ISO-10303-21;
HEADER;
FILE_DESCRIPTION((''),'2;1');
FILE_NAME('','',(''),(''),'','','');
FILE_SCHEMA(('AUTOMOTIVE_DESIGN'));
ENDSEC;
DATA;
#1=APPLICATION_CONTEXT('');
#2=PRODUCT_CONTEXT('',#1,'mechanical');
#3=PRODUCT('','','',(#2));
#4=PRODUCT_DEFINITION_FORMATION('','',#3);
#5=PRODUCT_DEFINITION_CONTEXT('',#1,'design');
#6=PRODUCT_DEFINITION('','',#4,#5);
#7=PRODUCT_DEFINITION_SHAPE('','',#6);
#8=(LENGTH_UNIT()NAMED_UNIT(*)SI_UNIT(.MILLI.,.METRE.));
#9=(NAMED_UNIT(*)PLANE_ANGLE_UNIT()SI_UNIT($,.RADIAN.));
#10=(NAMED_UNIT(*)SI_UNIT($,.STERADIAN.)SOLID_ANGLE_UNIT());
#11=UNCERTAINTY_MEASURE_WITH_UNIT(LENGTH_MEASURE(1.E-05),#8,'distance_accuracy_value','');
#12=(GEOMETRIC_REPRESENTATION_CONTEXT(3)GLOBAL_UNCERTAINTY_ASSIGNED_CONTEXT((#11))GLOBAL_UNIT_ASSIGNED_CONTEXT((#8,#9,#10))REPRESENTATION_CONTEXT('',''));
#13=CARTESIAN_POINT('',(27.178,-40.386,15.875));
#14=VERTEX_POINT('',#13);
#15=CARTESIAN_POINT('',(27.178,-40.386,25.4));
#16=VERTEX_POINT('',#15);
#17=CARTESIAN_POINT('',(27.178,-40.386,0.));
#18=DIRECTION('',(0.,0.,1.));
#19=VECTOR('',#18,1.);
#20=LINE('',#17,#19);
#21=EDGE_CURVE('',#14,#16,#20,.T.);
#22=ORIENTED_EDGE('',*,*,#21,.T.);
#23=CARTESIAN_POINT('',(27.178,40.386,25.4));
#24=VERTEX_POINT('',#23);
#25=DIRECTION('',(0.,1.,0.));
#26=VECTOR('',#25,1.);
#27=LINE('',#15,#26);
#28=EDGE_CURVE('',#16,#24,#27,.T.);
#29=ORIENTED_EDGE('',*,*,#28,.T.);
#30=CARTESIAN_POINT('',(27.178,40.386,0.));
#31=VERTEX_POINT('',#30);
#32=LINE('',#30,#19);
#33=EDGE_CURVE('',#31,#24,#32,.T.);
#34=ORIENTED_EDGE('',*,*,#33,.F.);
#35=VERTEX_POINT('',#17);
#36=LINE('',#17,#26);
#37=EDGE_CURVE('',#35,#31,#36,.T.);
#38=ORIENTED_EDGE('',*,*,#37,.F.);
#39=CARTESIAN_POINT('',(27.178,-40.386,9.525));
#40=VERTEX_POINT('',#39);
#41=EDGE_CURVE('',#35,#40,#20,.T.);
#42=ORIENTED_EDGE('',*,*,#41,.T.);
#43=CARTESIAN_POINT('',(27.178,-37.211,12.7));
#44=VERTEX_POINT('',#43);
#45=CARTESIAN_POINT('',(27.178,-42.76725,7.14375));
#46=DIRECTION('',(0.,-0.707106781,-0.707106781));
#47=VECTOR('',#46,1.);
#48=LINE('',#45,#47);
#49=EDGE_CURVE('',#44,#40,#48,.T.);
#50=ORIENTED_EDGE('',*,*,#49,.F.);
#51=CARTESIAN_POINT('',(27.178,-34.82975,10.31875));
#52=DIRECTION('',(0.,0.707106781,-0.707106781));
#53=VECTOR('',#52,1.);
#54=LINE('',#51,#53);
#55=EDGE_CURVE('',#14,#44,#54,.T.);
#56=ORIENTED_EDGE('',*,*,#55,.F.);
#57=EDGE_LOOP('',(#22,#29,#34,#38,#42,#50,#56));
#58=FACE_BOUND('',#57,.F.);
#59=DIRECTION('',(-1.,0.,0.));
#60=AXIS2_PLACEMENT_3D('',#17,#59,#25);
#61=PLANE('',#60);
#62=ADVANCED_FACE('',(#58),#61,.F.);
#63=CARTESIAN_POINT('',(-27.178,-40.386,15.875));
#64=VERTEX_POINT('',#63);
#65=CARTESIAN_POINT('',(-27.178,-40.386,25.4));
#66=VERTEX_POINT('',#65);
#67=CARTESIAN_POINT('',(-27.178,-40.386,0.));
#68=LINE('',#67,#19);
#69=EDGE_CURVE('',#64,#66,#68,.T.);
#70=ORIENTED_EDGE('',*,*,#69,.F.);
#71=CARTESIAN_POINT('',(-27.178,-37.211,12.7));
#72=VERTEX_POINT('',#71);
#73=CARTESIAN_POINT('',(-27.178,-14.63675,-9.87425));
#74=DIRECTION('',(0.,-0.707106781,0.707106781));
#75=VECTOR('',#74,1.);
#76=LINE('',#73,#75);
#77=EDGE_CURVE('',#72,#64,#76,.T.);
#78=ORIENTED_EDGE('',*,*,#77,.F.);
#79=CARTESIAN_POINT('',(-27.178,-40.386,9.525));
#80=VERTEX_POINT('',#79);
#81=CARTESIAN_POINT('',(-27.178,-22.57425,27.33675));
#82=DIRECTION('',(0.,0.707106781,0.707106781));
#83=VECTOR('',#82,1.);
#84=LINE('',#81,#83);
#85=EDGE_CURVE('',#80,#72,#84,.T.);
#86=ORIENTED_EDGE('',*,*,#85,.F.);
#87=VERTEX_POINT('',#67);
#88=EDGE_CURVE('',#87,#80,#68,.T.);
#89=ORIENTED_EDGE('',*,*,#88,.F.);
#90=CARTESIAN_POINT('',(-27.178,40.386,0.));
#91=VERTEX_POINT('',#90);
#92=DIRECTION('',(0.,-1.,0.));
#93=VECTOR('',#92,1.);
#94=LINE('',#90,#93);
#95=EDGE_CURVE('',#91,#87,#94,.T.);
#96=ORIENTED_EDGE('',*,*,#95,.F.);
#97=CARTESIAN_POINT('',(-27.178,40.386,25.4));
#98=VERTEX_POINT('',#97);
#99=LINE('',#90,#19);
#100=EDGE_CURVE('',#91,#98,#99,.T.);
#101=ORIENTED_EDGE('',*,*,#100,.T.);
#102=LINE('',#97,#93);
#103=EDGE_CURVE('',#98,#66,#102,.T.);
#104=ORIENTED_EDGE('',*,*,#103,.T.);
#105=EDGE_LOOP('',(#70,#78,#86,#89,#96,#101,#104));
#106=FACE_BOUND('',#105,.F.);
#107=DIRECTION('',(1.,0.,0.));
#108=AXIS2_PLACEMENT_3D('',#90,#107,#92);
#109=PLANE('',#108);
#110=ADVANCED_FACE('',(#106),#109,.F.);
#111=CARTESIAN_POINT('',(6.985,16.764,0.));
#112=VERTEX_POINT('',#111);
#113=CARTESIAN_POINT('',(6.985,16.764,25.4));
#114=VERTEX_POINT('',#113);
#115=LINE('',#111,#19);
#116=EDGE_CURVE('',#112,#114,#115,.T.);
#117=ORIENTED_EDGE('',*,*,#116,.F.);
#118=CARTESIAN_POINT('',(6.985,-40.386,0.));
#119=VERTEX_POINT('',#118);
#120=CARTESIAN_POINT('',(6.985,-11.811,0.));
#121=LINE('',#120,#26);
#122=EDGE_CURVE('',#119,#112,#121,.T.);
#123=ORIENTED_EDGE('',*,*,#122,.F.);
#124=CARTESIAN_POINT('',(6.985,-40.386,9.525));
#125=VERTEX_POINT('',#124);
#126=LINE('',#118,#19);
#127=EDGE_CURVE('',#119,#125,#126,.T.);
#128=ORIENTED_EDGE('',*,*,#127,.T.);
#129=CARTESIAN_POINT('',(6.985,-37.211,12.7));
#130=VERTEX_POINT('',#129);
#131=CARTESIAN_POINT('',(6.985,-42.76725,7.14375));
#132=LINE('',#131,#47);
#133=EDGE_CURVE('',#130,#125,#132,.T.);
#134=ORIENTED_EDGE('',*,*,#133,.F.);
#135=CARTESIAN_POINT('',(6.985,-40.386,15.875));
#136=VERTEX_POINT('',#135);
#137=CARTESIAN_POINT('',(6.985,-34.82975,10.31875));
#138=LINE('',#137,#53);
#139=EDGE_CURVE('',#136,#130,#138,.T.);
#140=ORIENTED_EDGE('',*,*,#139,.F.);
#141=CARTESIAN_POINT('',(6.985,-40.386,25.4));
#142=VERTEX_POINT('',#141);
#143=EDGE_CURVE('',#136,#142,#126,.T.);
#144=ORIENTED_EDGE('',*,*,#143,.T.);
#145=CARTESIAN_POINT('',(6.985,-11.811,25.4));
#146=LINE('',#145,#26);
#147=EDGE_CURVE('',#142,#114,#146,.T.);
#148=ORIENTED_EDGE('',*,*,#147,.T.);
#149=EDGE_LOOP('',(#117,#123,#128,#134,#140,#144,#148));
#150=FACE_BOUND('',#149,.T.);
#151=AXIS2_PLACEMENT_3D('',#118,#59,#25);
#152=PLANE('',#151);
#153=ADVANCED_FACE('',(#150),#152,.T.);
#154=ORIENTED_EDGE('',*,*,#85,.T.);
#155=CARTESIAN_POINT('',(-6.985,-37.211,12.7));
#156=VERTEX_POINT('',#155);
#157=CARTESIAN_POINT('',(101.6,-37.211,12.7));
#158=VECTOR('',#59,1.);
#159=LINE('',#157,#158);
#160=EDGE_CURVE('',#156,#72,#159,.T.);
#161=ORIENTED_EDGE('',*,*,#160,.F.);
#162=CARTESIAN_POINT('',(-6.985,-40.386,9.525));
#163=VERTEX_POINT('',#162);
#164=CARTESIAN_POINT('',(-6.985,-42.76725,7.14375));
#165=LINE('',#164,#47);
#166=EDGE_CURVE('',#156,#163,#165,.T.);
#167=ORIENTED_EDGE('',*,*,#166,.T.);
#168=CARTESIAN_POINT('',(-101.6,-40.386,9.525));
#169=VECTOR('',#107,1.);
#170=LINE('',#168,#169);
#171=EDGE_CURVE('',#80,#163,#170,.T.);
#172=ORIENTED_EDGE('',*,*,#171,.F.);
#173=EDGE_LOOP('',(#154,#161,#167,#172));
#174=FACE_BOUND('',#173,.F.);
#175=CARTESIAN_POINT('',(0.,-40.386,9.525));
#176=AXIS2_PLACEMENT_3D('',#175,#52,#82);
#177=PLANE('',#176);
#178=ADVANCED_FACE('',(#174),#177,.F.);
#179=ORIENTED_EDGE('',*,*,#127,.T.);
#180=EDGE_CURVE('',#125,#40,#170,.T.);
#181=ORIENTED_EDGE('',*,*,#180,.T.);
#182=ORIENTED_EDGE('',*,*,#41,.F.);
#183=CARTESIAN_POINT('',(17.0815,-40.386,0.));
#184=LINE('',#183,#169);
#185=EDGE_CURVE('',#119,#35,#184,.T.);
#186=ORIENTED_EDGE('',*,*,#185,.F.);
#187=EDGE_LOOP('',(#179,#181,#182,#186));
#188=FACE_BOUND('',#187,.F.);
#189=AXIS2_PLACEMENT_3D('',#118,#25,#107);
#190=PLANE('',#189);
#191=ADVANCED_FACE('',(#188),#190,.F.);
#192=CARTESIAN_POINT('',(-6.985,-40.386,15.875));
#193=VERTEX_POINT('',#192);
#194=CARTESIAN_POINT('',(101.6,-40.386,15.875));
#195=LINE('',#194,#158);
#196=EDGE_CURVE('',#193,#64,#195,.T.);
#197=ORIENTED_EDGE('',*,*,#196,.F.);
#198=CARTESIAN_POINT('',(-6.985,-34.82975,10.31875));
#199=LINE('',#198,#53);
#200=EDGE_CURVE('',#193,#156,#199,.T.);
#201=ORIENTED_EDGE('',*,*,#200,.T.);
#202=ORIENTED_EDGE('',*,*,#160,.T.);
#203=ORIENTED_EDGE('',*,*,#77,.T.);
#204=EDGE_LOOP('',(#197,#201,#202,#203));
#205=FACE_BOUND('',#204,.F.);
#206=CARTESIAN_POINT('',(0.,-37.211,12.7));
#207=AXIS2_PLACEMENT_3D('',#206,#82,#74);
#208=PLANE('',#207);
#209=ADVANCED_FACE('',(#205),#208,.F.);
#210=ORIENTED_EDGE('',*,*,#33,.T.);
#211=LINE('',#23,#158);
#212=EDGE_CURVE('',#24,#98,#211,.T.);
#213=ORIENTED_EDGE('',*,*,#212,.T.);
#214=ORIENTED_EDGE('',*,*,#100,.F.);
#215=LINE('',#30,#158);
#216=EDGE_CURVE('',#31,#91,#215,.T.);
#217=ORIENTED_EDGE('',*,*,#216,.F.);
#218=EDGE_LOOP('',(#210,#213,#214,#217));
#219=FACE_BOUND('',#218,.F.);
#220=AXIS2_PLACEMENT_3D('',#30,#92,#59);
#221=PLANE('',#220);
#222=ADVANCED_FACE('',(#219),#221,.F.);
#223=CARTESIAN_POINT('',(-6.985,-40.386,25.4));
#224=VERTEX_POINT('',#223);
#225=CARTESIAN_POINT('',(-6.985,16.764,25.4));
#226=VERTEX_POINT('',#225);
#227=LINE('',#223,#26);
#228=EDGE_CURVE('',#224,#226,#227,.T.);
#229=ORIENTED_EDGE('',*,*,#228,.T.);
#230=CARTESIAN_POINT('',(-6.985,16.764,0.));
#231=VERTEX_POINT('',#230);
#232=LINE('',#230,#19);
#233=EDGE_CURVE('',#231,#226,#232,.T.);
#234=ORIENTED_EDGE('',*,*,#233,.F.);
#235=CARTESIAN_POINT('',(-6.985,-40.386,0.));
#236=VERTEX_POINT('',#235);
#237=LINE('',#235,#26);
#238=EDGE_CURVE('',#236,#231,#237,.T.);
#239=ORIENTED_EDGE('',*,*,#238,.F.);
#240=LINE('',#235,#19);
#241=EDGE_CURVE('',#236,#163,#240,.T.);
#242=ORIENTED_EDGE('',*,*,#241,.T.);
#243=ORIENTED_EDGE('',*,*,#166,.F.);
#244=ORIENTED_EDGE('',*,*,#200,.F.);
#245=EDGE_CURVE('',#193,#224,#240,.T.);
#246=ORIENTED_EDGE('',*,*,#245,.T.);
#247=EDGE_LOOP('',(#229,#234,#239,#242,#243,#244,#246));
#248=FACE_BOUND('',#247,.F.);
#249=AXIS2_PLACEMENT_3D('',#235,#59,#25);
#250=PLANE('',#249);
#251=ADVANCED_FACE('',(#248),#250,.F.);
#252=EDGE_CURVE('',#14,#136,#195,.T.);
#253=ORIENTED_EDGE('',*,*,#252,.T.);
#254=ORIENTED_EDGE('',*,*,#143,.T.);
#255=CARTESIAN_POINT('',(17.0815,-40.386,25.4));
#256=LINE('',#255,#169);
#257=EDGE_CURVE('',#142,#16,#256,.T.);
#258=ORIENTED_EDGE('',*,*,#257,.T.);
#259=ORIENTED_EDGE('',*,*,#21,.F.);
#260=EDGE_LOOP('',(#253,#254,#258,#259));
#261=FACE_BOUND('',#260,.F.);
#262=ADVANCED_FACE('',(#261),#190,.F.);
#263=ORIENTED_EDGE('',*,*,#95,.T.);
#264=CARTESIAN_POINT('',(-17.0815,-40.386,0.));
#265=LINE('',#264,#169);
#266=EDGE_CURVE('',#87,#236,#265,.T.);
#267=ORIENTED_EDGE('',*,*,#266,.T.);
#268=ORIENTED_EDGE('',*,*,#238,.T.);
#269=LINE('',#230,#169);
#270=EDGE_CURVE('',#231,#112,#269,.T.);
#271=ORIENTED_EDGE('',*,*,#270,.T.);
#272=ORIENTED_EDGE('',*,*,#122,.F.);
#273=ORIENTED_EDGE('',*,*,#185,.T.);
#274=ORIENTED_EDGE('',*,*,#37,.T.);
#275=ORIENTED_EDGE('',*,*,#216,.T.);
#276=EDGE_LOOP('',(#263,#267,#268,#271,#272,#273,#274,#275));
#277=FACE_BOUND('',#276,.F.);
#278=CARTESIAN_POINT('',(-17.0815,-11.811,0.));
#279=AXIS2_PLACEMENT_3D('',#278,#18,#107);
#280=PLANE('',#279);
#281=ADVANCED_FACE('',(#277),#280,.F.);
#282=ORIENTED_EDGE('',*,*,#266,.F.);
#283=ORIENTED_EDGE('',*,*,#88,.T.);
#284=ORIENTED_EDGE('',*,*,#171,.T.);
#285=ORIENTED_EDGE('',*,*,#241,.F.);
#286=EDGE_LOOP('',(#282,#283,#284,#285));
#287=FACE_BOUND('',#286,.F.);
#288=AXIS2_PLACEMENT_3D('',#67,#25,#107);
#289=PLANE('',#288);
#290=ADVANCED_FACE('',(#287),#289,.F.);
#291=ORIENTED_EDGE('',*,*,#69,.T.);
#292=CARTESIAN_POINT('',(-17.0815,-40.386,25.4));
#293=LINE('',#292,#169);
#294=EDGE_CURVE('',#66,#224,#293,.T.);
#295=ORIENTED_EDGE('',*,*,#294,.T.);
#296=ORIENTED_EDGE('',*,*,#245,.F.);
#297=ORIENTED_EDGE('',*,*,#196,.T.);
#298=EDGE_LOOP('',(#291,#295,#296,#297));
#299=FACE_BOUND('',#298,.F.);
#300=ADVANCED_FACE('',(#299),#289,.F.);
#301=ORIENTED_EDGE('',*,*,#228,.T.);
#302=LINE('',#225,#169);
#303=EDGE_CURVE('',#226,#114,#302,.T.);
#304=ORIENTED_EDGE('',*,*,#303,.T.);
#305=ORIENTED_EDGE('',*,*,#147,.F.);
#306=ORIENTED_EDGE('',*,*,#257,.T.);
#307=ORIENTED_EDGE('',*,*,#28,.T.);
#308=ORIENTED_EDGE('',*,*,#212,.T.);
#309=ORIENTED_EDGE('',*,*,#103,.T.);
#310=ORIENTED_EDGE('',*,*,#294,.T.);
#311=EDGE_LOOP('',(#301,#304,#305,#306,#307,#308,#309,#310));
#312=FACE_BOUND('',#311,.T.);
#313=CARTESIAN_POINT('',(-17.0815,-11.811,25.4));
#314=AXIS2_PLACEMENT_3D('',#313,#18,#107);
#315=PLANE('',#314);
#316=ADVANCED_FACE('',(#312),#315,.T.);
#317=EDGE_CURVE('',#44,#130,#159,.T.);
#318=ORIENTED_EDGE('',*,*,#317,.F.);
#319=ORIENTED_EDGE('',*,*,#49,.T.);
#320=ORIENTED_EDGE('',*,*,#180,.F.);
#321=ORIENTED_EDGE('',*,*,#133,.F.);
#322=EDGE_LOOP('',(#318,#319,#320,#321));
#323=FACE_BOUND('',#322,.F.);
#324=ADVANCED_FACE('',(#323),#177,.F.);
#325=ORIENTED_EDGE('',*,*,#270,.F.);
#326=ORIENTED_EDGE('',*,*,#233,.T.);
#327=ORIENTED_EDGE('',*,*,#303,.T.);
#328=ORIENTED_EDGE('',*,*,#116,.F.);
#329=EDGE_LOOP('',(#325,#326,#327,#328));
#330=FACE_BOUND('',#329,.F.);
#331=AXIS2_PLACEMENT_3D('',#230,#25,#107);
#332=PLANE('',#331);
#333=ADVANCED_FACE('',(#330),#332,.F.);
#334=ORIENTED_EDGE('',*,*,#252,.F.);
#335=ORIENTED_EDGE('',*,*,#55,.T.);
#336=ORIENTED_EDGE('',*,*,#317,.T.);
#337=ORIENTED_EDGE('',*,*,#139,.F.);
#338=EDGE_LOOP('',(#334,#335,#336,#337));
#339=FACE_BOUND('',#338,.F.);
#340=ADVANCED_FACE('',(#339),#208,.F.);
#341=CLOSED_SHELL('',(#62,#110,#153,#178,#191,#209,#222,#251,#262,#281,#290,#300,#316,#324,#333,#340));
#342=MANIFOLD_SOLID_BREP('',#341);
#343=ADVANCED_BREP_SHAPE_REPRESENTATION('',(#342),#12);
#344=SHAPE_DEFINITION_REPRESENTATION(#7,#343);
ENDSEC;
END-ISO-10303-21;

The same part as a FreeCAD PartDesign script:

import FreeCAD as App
import Part
import Sketcher
Q = App.Units.Quantity

doc = App.newDocument("Part")
body = doc.addObject("PartDesign::Body", "Body")

# Sketch on XY plane
sketch1 = body.newObject("Sketcher::SketchObject", "Sketch")
sketch1.AttachmentSupport = (doc.getObject("XY_Plane"), [""])
sketch1.MapMode = "FlatFace"
sketch1.addGeometry([
    Part.LineSegment(App.Vector(-27.178, -40.386, 0), App.Vector(-6.985, -40.386, 0)),  # 0
    Part.LineSegment(App.Vector(-6.985, -40.386, 0), App.Vector(-6.985, 16.764, 0)),  # 1
    Part.LineSegment(App.Vector(-6.985, 16.764, 0), App.Vector(6.985, 16.764, 0)),  # 2
    Part.LineSegment(App.Vector(6.985, 16.764, 0), App.Vector(6.985, -40.386, 0)),  # 3
    Part.LineSegment(App.Vector(6.985, -40.386, 0), App.Vector(27.178, -40.386, 0)),  # 4
    Part.LineSegment(App.Vector(27.178, -40.386, 0), App.Vector(27.178, 40.386, 0)),  # 5
    Part.LineSegment(App.Vector(27.178, 40.386, 0), App.Vector(-27.178, 40.386, 0)),  # 6
    Part.LineSegment(App.Vector(-27.178, 40.386, 0), App.Vector(-27.178, -40.386, 0)),  # 7
], False)
sketch1.addConstraint([
    Sketcher.Constraint("Coincident", 0, 2, 1, 1),
    Sketcher.Constraint("Coincident", 1, 2, 2, 1),
    Sketcher.Constraint("Coincident", 2, 2, 3, 1),
    Sketcher.Constraint("Coincident", 3, 2, 4, 1),
    Sketcher.Constraint("Coincident", 4, 2, 5, 1),
    Sketcher.Constraint("Coincident", 5, 2, 6, 1),
    Sketcher.Constraint("Coincident", 6, 2, 7, 1),
    Sketcher.Constraint("Coincident", 7, 2, 0, 1),
    Sketcher.Constraint("Horizontal", 0),
    Sketcher.Constraint("Vertical", 1),
    Sketcher.Constraint("Horizontal", 2),
    Sketcher.Constraint("Vertical", 3),
    Sketcher.Constraint("Horizontal", 4),
    Sketcher.Constraint("Vertical", 5),
    Sketcher.Constraint("Horizontal", 6),
    Sketcher.Constraint("Vertical", 7),
    Sketcher.Constraint("Symmetric", 4, 2, 6, 2, -1, 1),
    Sketcher.Constraint("Symmetric", 0, 2, 3, 2, -2),
    Sketcher.Constraint("DistanceX", 2, 1, 2, 2, Q("0.55 in")),
    Sketcher.Constraint("DistanceX", 6, 2, 6, 1, Q("2.14 in")),
    Sketcher.Constraint("DistanceY", 1, 1, 1, 2, Q("2.25 in")),
    Sketcher.Constraint("DistanceY", 5, 1, 5, 2, Q("3.18 in")),
])
pad1 = body.newObject("PartDesign::Pad", "Pad")
pad1.Profile = sketch1
pad1.Length = Q("1 in")

# Sketch on YZ plane
sketch2 = body.newObject("Sketcher::SketchObject", "Sketch001")
sketch2.AttachmentSupport = (doc.getObject("YZ_Plane"), [""])
sketch2.MapMode = "FlatFace"
sketch2.addGeometry([
    Part.LineSegment(App.Vector(-40.386, 15.875, 0), App.Vector(-40.386, 9.525, 0)),
    Part.LineSegment(App.Vector(-40.386, 9.525, 0), App.Vector(-37.211, 12.7, 0)),
    Part.LineSegment(App.Vector(-37.211, 12.7, 0), App.Vector(-40.386, 15.875, 0)),
], False)
sketch2.addConstraint([
    Sketcher.Constraint("Coincident", 0, 2, 1, 1),
    Sketcher.Constraint("Coincident", 1, 2, 2, 1),
    Sketcher.Constraint("Coincident", 2, 2, 0, 1),
    Sketcher.Constraint("Vertical", 0),
    Sketcher.Constraint("Perpendicular", 1, 2),
    Sketcher.Constraint("Equal", 1, 2),
    Sketcher.Constraint("DistanceY", 0, 2, 0, 1, Q("0.25 in")),
    Sketcher.Constraint("DistanceY", -1, 1, 1, 2, Q("0.5 in")),
    Sketcher.Constraint("DistanceX", 0, 2, -1, 1, Q("1.59 in")),
])
pocket1 = body.newObject("PartDesign::Pocket", "Pocket")
pocket1.Profile = sketch2
pocket1.Length = Q("8 in")
pocket1.Midplane = True

doc.recompute()
